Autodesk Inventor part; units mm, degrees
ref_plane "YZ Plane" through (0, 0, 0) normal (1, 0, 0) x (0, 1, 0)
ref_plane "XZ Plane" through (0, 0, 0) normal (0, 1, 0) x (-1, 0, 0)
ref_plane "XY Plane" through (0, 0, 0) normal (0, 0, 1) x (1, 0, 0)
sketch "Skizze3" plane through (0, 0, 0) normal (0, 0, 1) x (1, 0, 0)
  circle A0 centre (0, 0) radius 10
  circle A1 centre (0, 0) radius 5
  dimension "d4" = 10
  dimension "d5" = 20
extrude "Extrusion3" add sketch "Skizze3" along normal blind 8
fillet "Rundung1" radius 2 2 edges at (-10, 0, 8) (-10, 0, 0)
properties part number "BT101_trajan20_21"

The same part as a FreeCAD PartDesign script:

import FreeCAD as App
import Part
import Sketcher


def edges_at(feature, points):
    """Names of the edges that pass closest to the given points."""
    edges = feature.Shape.Edges
    near = lambda p: min(range(len(edges)), key=lambda i: edges[i].distToShape(Part.Vertex(*p))[0])
    return sorted({f"Edge{near(p) + 1}" for p in points})

doc = App.newDocument("Part")
body = doc.addObject("PartDesign::Body", "Body")

# Sketch on XY plane
sketch1 = body.newObject("Sketcher::SketchObject", "Sketch")
sketch1.AttachmentSupport = (doc.getObject("XY_Plane"), [""])
sketch1.MapMode = "FlatFace"
sketch1.addGeometry([
    Part.Circle(App.Vector(0, 0, 0), App.Vector(0, 0, 1), 10),
    Part.Circle(App.Vector(0, 0, 0), App.Vector(0, 0, 1), 5),
], False)
sketch1.addConstraint([
    Sketcher.Constraint("Coincident", 0, 3, -1, 1),
    Sketcher.Constraint("Coincident", 1, 3, -1, 1),
    Sketcher.Constraint("Diameter", 0, 20.0),
    Sketcher.Constraint("Diameter", 1, 10.0),
])
pad1 = body.newObject("PartDesign::Pad", "Pad")
pad1.Profile = sketch1
pad1.Length = 8
doc.recompute()

fillet = body.newObject("PartDesign::Fillet", "Fillet")
fillet.Base = (pad1, edges_at(pad1, [(-10, 0, 8), (-10, 0, 0)]))
fillet.Radius = 2

doc.recompute()
